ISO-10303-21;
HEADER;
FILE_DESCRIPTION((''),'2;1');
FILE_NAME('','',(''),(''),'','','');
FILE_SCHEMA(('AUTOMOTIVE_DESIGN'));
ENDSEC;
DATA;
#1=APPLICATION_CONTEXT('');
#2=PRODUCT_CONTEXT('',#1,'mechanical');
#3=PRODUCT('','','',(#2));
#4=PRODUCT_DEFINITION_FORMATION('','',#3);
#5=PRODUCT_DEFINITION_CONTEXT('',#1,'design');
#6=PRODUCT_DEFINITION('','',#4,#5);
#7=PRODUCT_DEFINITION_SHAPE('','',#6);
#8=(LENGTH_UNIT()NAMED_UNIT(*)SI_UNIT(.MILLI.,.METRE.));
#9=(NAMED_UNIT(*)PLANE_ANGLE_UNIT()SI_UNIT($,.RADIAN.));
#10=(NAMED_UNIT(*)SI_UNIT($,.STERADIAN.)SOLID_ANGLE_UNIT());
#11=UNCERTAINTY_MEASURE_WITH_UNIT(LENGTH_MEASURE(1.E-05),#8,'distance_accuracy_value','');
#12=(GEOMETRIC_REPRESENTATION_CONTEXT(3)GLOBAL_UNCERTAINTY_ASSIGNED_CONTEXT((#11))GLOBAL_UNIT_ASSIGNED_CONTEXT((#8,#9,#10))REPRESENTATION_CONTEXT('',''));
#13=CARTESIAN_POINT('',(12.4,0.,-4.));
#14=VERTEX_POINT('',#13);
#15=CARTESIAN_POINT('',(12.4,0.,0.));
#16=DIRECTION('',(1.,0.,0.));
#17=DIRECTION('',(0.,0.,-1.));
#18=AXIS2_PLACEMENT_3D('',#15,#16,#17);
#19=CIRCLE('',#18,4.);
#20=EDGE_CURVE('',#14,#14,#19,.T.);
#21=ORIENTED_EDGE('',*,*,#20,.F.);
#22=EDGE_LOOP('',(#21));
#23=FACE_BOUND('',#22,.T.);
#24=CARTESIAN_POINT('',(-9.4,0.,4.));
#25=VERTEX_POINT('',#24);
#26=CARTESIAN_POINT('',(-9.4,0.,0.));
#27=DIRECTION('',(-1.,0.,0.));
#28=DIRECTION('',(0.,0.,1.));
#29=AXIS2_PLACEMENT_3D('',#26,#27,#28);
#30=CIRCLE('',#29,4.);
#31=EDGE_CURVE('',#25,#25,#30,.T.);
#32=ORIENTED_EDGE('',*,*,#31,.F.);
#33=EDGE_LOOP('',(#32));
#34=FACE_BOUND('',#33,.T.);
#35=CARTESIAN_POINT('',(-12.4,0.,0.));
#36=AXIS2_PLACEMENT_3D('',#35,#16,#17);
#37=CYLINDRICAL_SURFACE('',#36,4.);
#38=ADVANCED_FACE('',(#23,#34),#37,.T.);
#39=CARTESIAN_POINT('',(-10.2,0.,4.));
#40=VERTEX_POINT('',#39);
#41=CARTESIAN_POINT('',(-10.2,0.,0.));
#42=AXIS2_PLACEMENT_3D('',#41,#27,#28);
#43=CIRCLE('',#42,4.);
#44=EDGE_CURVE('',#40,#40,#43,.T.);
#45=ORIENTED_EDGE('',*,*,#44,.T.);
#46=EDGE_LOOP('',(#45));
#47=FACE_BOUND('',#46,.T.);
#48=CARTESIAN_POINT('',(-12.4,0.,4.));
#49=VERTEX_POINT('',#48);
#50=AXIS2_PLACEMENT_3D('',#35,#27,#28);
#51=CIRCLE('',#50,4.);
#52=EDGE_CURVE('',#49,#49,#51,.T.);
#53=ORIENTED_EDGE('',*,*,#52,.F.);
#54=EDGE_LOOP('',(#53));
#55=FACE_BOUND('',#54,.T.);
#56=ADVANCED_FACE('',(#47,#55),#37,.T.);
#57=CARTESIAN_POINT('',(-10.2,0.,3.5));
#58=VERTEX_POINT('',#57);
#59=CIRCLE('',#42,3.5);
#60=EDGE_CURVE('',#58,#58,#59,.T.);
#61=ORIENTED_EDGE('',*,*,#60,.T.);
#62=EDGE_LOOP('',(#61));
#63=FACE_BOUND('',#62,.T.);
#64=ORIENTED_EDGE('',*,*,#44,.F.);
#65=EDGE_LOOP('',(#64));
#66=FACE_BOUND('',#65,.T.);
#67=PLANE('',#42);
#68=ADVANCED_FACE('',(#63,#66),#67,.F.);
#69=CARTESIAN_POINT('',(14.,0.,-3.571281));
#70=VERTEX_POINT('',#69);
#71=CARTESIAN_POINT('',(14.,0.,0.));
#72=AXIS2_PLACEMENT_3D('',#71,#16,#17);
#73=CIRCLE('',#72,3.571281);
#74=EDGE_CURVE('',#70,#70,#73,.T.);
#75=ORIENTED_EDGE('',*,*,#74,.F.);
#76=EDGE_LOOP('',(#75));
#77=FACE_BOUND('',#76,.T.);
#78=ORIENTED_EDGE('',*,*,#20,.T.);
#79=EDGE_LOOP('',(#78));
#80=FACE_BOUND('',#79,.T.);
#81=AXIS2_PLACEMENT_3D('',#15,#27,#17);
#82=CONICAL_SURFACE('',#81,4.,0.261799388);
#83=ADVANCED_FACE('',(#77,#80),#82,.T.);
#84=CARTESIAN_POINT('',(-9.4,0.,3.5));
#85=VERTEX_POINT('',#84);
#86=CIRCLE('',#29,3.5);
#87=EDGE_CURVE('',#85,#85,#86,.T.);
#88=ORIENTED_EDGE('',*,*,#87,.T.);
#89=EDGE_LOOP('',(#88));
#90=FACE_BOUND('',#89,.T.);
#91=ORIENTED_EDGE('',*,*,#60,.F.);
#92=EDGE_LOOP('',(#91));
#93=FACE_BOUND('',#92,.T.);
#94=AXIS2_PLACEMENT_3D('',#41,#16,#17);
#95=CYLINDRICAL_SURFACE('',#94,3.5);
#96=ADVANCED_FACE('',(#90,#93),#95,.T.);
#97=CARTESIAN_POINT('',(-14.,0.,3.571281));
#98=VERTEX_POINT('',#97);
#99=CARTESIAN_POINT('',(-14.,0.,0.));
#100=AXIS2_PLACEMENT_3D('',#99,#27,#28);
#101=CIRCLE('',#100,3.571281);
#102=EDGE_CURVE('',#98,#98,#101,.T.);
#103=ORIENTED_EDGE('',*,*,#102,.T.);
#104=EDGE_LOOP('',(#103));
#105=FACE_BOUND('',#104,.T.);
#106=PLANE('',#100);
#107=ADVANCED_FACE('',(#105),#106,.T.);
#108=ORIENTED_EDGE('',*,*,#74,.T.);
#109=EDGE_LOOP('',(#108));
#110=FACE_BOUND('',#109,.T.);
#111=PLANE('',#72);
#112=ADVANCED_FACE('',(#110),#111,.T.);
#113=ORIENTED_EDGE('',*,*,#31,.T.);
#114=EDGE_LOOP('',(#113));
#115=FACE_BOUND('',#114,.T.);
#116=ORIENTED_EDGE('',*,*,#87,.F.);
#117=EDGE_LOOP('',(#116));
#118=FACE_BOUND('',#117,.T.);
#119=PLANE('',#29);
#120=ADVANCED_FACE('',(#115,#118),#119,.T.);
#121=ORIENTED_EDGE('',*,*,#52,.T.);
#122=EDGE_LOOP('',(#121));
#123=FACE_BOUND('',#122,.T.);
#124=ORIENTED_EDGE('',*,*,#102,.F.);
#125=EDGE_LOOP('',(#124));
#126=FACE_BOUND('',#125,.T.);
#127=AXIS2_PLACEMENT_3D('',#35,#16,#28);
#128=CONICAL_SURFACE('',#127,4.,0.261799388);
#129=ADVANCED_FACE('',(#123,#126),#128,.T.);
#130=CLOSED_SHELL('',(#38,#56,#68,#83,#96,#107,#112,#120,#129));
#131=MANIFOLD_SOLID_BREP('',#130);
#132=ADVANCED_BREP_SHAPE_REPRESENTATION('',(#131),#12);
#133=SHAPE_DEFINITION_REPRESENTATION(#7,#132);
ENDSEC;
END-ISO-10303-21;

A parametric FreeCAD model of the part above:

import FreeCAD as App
import Part
import Sketcher
from FreeCAD import Vector

doc = App.newDocument("Part")
params = doc.addObject("Spreadsheet::Sheet", "Params")
for row, (alias, value) in enumerate([
    ("sketch1_diameter", "8 mm"),
    ("pad1_length", "12.4 mm"),
    ("pad1_length2", "12.4 mm"),
    ("sketch2_diameter", "8 mm"),
    ("pad2_length", "1.6 mm"),
    ("pad2_taper", "-15 deg"),
    ("sketch3_diameter", "8 mm"),
    ("pad3_length", "1.6 mm"),
    ("pad3_taper", "-15 deg"),
    ("sketch4_diameter", "8 mm"),
    ("sketch4_diameter2", "7 mm"),
    ("pocket1_length", "0.8 mm"),
], start=1):
    params.set(f"A{row}", alias)
    params.set(f"B{row}", "=" + value)
    params.setAlias(f"B{row}", alias)

body = doc.addObject("PartDesign::Body", "Body")

sketch1 = doc.addObject("Sketcher::SketchObject", "Sketch")
body.addObject(sketch1)
sketch1.AttachmentSupport = (doc.YZ_Plane, [""])
sketch1.MapMode = "FlatFace"
sketch1.addGeometry(Part.Circle(Vector(0, 0, 0), Vector(0, 0, 1), 4), False)
sketch1.addConstraint(Sketcher.Constraint("Coincident", 0, 3, -1, 1))
sketch1.addConstraint(Sketcher.Constraint("Diameter", 0, 8.0))
sketch1.setExpression("Constraints[1]", "Params.sketch1_diameter")
pad1 = doc.addObject("PartDesign::Pad", "Pad")
body.addObject(pad1)
pad1.Profile = sketch1
pad1.Type = "TwoLengths"
pad1.setExpression("Length", "Params.pad1_length")
pad1.setExpression("Length2", "Params.pad1_length2")

sketch2 = doc.addObject("Sketcher::SketchObject", "Sketch001")
body.addObject(sketch2)
sketch2.AttachmentSupport = (doc.YZ_Plane, [""])
sketch2.MapMode = "FlatFace"
sketch2.AttachmentOffset = App.Placement(Vector(0, 0, 12.4), App.Rotation())
sketch2.addGeometry(Part.Circle(Vector(0, 0, 0), Vector(0, 0, 1), 4), False)
sketch2.addConstraint(Sketcher.Constraint("Coincident", 0, 3, -1, 1))
sketch2.addConstraint(Sketcher.Constraint("Diameter", 0, 8.0))
sketch2.setExpression("Constraints[1]", "Params.sketch2_diameter")
pad2 = doc.addObject("PartDesign::Pad", "Pad001")
body.addObject(pad2)
pad2.Profile = sketch2
pad2.setExpression("Length", "Params.pad2_length")
pad2.setExpression("TaperAngle", "Params.pad2_taper")

sketch3 = doc.addObject("Sketcher::SketchObject", "Sketch002")
body.addObject(sketch3)
sketch3.AttachmentSupport = (doc.YZ_Plane, [""])
sketch3.MapMode = "FlatFace"
sketch3.AttachmentOffset = App.Placement(Vector(0, 0, -12.4), App.Rotation())
sketch3.addGeometry(Part.Circle(Vector(0, 0, 0), Vector(0, 0, 1), 4), False)
sketch3.addConstraint(Sketcher.Constraint("Coincident", 0, 3, -1, 1))
sketch3.addConstraint(Sketcher.Constraint("Diameter", 0, 8.0))
sketch3.setExpression("Constraints[1]", "Params.sketch3_diameter")
pad3 = doc.addObject("PartDesign::Pad", "Pad002")
body.addObject(pad3)
pad3.Profile = sketch3
pad3.setExpression("Length", "Params.pad3_length")
pad3.Reversed = True
pad3.setExpression("TaperAngle", "Params.pad3_taper")

sketch4 = doc.addObject("Sketcher::SketchObject", "Sketch003")
body.addObject(sketch4)
sketch4.AttachmentSupport = (doc.YZ_Plane, [""])
sketch4.MapMode = "FlatFace"
sketch4.AttachmentOffset = App.Placement(Vector(0, 0, -9.4), App.Rotation())
sketch4.addGeometry(Part.Circle(Vector(0, 0, 0), Vector(0, 0, 1), 4), False)
sketch4.addGeometry(Part.Circle(Vector(0, 0, 0), Vector(0, 0, 1), 3.5), False)
sketch4.addConstraint(Sketcher.Constraint("Coincident", 0, 3, -1, 1))
sketch4.addConstraint(Sketcher.Constraint("Coincident", 1, 3, -1, 1))
sketch4.addConstraint(Sketcher.Constraint("Diameter", 0, 8.0))
sketch4.addConstraint(Sketcher.Constraint("Diameter", 1, 7.0))
sketch4.setExpression("Constraints[2]", "Params.sketch4_diameter")
sketch4.setExpression("Constraints[3]", "Params.sketch4_diameter2")
pocket1 = doc.addObject("PartDesign::Pocket", "Pocket")
body.addObject(pocket1)
pocket1.Profile = sketch4
pocket1.setExpression("Length", "Params.pocket1_length")

doc.recompute()
